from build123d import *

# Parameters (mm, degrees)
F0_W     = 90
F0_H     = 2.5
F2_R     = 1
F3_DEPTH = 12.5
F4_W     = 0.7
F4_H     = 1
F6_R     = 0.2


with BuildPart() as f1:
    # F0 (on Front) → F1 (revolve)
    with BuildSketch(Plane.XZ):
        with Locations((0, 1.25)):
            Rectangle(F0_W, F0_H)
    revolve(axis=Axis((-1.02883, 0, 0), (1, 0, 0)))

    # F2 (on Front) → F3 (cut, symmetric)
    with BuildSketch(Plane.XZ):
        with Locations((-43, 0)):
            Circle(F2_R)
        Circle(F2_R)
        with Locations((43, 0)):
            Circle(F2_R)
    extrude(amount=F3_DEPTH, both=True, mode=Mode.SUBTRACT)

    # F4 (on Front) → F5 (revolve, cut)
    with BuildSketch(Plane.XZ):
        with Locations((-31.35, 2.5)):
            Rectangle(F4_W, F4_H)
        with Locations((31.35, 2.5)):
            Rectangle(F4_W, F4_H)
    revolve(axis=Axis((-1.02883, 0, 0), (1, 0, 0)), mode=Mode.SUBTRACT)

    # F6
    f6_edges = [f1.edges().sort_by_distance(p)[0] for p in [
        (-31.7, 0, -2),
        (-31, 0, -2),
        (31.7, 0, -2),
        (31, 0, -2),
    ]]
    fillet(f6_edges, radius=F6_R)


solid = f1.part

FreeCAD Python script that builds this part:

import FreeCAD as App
import Part
import Sketcher

V = App.Vector


def edges_at(feature, points):
    """Names of the edges that pass closest to the given points."""
    edges = feature.Shape.Edges
    near = lambda p: min(range(len(edges)), key=lambda i: edges[i].distToShape(Part.Vertex(*p))[0])
    return sorted({f"Edge{near(p) + 1}" for p in points})

doc = App.newDocument("Part")
body = doc.addObject("PartDesign::Body", "Body")

# Sketch on XZ plane
sketch1 = body.newObject("Sketcher::SketchObject", "Sketch")
sketch1.AttachmentSupport = (doc.getObject("XZ_Plane"), [""])
sketch1.MapMode = "FlatFace"
sketch1.addGeometry(Part.LineSegment(V(-45, 2.5, 0), V(-45, 0, 0)), False)
sketch1.addGeometry(Part.LineSegment(V(-45, 0, 0), V(45, 0, 0)), False)
sketch1.addGeometry(Part.LineSegment(V(45, 0, 0), V(45, 2.5, 0)), False)
sketch1.addGeometry(Part.LineSegment(V(45, 2.5, 0), V(-45, 2.5, 0)), False)
sketch1.addConstraint(Sketcher.Constraint("Coincident", 0, 2, 1, 1))
sketch1.addConstraint(Sketcher.Constraint("Coincident", 1, 2, 2, 1))
sketch1.addConstraint(Sketcher.Constraint("Coincident", 2, 2, 3, 1))
sketch1.addConstraint(Sketcher.Constraint("Coincident", 3, 2, 0, 1))
sketch1.addConstraint(Sketcher.Constraint("Vertical", 0))
sketch1.addConstraint(Sketcher.Constraint("Horizontal", 1))
sketch1.addConstraint(Sketcher.Constraint("Vertical", 2))
sketch1.addConstraint(Sketcher.Constraint("Horizontal", 3))
sketch1.addConstraint(Sketcher.Constraint("Symmetric", 0, 2, 1, 2, -1, 1))
sketch1.addConstraint(Sketcher.Constraint("DistanceX", 1, 1, 1, 2, 90.0))
sketch1.addConstraint(Sketcher.Constraint("DistanceY", 0, 2, 0, 1, 2.5))
revolution = body.newObject("PartDesign::Revolution", "Revolution")
revolution.Profile = sketch1
revolution.ReferenceAxis = (sketch1, ["H_Axis"])
revolution.Angle = 360

# Sketch on XZ plane
sketch2 = body.newObject("Sketcher::SketchObject", "Sketch001")
sketch2.AttachmentSupport = (doc.getObject("XZ_Plane"), [""])
sketch2.MapMode = "FlatFace"
sketch2.addGeometry(Part.Circle(V(-43, 0, 0), V(0, 0, 1), 1), False)
sketch2.addGeometry(Part.Circle(V(0, 0, 0), V(0, 0, 1), 1), False)
sketch2.addGeometry(Part.Circle(V(43, 0, 0), V(0, 0, 1), 1), False)
sketch2.addConstraint(Sketcher.Constraint("Coincident", 1, 3, -1, 1))
sketch2.addConstraint(Sketcher.Constraint("Equal", 0, 1))
sketch2.addConstraint(Sketcher.Constraint("Equal", 1, 2))
sketch2.addConstraint(Sketcher.Constraint("Symmetric", 0, 3, 2, 3, -1, 1))
sketch2.addConstraint(Sketcher.Constraint("PointOnObject", 0, 3, -1))
sketch2.addConstraint(Sketcher.Constraint("Diameter", 0, 2.0))
sketch2.addConstraint(Sketcher.Constraint("DistanceX", 0, 3, -1, 1, 43.0))
pocket1 = body.newObject("PartDesign::Pocket", "Pocket")
pocket1.Profile = sketch2
pocket1.Length = 25
pocket1.Midplane = True

# Sketch on XZ plane
sketch3 = body.newObject("Sketcher::SketchObject", "Sketch002")
sketch3.AttachmentSupport = (doc.getObject("XZ_Plane"), [""])
sketch3.MapMode = "FlatFace"
sketch3.addGeometry(Part.LineSegment(V(-31.7, 3, 0), V(-31.7, 2, 0)), False)
sketch3.addGeometry(Part.LineSegment(V(-31.7, 2, 0), V(-31, 2, 0)), False)
sketch3.addGeometry(Part.LineSegment(V(-31, 2, 0), V(-31, 3, 0)), False)
sketch3.addGeometry(Part.LineSegment(V(-31, 3, 0), V(-31.7, 3, 0)), False)
sketch3.addGeometry(Part.LineSegment(V(31, 3, 0), V(31, 2, 0)), False)
sketch3.addGeometry(Part.LineSegment(V(31, 2, 0), V(31.7, 2, 0)), False)
sketch3.addGeometry(Part.LineSegment(V(31.7, 2, 0), V(31.7, 3, 0)), False)
sketch3.addGeometry(Part.LineSegment(V(31.7, 3, 0), V(31, 3, 0)), False)
sketch3.addConstraint(Sketcher.Constraint("Coincident", 0, 2, 1, 1))
sketch3.addConstraint(Sketcher.Constraint("Coincident", 1, 2, 2, 1))
sketch3.addConstraint(Sketcher.Constraint("Coincident", 2, 2, 3, 1))
sketch3.addConstraint(Sketcher.Constraint("Coincident", 3, 2, 0, 1))
sketch3.addConstraint(Sketcher.Constraint("Coincident", 4, 2, 5, 1))
sketch3.addConstraint(Sketcher.Constraint("Coincident", 5, 2, 6, 1))
sketch3.addConstraint(Sketcher.Constraint("Coincident", 6, 2, 7, 1))
sketch3.addConstraint(Sketcher.Constraint("Coincident", 7, 2, 4, 1))
sketch3.addConstraint(Sketcher.Constraint("Vertical", 0))
sketch3.addConstraint(Sketcher.Constraint("Horizontal", 1))
sketch3.addConstraint(Sketcher.Constraint("Vertical", 2))
sketch3.addConstraint(Sketcher.Constraint("Horizontal", 3))
sketch3.addConstraint(Sketcher.Constraint("Vertical", 4))
sketch3.addConstraint(Sketcher.Constraint("Horizontal", 5))
sketch3.addConstraint(Sketcher.Constraint("Vertical", 6))
sketch3.addConstraint(Sketcher.Constraint("Horizontal", 7))
sketch3.addConstraint(Sketcher.Constraint("Symmetric", 1, 2, 4, 2, -2))
sketch3.addConstraint(Sketcher.Constraint("Symmetric", 3, 2, 6, 2, -2))
sketch3.addConstraint(Sketcher.Constraint("DistanceY", 0, 2, 0, 1, 1.0))
sketch3.addConstraint(Sketcher.Constraint("DistanceX", 1, 1, 1, 2, 0.7))
sketch3.addConstraint(Sketcher.Constraint("DistanceY", -1, 1, 0, 2, 2.0))
sketch3.addConstraint(Sketcher.Constraint("DistanceX", 1, 2, -1, 1, 31.0))
groove = body.newObject("PartDesign::Groove", "Groove")
groove.Profile = sketch3
groove.ReferenceAxis = (sketch3, ["H_Axis"])
groove.Angle = 360
doc.recompute()

fillet = body.newObject("PartDesign::Fillet", "Fillet")
fillet.Base = (groove, edges_at(groove, [
    (-31.7, 0, -2),
    (-31, 0, -2),
    (31.7, 0, -2),
    (31, 0, -2),
]))
fillet.Radius = 0.2

doc.recompute()
